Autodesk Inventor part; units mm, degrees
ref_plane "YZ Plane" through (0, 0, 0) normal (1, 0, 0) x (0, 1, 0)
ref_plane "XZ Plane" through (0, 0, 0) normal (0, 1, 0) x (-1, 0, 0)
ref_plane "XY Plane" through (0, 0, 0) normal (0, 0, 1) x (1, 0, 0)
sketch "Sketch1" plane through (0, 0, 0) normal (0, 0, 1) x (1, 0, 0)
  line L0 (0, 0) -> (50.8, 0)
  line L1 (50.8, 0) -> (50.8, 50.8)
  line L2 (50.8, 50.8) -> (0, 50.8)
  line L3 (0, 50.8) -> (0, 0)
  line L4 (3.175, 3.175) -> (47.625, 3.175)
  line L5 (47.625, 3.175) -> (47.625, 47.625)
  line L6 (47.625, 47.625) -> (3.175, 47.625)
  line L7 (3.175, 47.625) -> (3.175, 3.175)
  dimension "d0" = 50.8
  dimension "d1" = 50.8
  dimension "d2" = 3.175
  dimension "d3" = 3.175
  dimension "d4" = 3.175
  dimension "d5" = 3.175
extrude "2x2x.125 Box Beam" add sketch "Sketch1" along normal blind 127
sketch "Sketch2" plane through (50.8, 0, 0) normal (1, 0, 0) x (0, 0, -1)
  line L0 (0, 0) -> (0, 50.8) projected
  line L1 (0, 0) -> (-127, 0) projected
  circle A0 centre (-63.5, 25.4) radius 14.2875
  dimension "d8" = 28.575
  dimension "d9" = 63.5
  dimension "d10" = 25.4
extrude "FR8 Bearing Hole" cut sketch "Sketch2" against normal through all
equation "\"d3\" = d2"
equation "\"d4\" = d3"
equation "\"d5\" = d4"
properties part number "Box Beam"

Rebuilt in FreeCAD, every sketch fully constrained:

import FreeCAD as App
import Part
import Sketcher
Q = App.Units.Quantity

doc = App.newDocument("Part")
body = doc.addObject("PartDesign::Body", "Body")

sketch1 = body.newObject("Sketcher::SketchObject", "Sketch")
sketch1.AttachmentSupport = (doc.getObject("XY_Plane"), [""])
sketch1.MapMode = "FlatFace"
sketch1.addGeometry([
    Part.LineSegment(App.Vector(0, 51, 0), App.Vector(0, 0, 0)),
    Part.LineSegment(App.Vector(0, 0, 0), App.Vector(51, 0, 0)),
    Part.LineSegment(App.Vector(51, 0, 0), App.Vector(51, 51, 0)),
    Part.LineSegment(App.Vector(51, 51, 0), App.Vector(0, 51, 0)),
    Part.LineSegment(App.Vector(48, 3, 0), App.Vector(3, 3, 0)),
    Part.LineSegment(App.Vector(3, 3, 0), App.Vector(3, 48, 0)),
    Part.LineSegment(App.Vector(3, 48, 0), App.Vector(48, 48, 0)),
    Part.LineSegment(App.Vector(48, 48, 0), App.Vector(48, 3, 0)),
], False)
sketch1.addConstraint([
    Sketcher.Constraint("Coincident", 0, 2, 1, 1),
    Sketcher.Constraint("Coincident", 1, 2, 2, 1),
    Sketcher.Constraint("Coincident", 2, 2, 3, 1),
    Sketcher.Constraint("Coincident", 3, 2, 0, 1),
    Sketcher.Constraint("Coincident", 4, 2, 5, 1),
    Sketcher.Constraint("Coincident", 5, 2, 6, 1),
    Sketcher.Constraint("Coincident", 6, 2, 7, 1),
    Sketcher.Constraint("Coincident", 7, 2, 4, 1),
    Sketcher.Constraint("Vertical", 0),
    Sketcher.Constraint("Horizontal", 1),
    Sketcher.Constraint("Vertical", 2),
    Sketcher.Constraint("Horizontal", 3),
    Sketcher.Constraint("Horizontal", 4),
    Sketcher.Constraint("Vertical", 5),
    Sketcher.Constraint("Horizontal", 6),
    Sketcher.Constraint("Vertical", 7),
    Sketcher.Constraint("Coincident", 0, 2, -1, 1),
    Sketcher.Constraint("Equal", 3, 0),
    Sketcher.Constraint("Equal", 6, 5),
    Sketcher.Constraint("DistanceX", 1, 1, 1, 2, Q("2 in")),
    Sketcher.Constraint("DistanceX", -1, 1, 4, 2, Q("0.125 in")),
    Sketcher.Constraint("DistanceY", -1, 1, 4, 2, Q("0.125 in")),
    Sketcher.Constraint("DistanceY", 5, 2, 3, 2, Q("0.125 in")),
])
pad1 = body.newObject("PartDesign::Pad", "Pad")
pad1.Profile = sketch1
pad1.Length = Q("5 in")

sketch2 = body.newObject("Sketcher::SketchObject", "Sketch001")
sketch2.AttachmentSupport = (doc.getObject("YZ_Plane"), [""])
sketch2.MapMode = "FlatFace"
sketch2.AttachmentOffset = App.Placement(App.Vector(0, 0, 2 * 25.4), App.Rotation())
sketch2.addGeometry(Part.Circle(App.Vector(25, 64, 0), App.Vector(0, 0, 1), 14), False)
sketch2.addConstraint([
    Sketcher.Constraint("Diameter", 0, Q("1.125 in")),
    Sketcher.Constraint("DistanceX", -1, 1, 0, 3, Q("1 in")),
    Sketcher.Constraint("DistanceY", -1, 1, 0, 3, Q("2.5 in")),
])
pocket1 = body.newObject("PartDesign::Pocket", "Pocket")
pocket1.Profile = sketch2
pocket1.Type = "ThroughAll"

doc.recompute()
